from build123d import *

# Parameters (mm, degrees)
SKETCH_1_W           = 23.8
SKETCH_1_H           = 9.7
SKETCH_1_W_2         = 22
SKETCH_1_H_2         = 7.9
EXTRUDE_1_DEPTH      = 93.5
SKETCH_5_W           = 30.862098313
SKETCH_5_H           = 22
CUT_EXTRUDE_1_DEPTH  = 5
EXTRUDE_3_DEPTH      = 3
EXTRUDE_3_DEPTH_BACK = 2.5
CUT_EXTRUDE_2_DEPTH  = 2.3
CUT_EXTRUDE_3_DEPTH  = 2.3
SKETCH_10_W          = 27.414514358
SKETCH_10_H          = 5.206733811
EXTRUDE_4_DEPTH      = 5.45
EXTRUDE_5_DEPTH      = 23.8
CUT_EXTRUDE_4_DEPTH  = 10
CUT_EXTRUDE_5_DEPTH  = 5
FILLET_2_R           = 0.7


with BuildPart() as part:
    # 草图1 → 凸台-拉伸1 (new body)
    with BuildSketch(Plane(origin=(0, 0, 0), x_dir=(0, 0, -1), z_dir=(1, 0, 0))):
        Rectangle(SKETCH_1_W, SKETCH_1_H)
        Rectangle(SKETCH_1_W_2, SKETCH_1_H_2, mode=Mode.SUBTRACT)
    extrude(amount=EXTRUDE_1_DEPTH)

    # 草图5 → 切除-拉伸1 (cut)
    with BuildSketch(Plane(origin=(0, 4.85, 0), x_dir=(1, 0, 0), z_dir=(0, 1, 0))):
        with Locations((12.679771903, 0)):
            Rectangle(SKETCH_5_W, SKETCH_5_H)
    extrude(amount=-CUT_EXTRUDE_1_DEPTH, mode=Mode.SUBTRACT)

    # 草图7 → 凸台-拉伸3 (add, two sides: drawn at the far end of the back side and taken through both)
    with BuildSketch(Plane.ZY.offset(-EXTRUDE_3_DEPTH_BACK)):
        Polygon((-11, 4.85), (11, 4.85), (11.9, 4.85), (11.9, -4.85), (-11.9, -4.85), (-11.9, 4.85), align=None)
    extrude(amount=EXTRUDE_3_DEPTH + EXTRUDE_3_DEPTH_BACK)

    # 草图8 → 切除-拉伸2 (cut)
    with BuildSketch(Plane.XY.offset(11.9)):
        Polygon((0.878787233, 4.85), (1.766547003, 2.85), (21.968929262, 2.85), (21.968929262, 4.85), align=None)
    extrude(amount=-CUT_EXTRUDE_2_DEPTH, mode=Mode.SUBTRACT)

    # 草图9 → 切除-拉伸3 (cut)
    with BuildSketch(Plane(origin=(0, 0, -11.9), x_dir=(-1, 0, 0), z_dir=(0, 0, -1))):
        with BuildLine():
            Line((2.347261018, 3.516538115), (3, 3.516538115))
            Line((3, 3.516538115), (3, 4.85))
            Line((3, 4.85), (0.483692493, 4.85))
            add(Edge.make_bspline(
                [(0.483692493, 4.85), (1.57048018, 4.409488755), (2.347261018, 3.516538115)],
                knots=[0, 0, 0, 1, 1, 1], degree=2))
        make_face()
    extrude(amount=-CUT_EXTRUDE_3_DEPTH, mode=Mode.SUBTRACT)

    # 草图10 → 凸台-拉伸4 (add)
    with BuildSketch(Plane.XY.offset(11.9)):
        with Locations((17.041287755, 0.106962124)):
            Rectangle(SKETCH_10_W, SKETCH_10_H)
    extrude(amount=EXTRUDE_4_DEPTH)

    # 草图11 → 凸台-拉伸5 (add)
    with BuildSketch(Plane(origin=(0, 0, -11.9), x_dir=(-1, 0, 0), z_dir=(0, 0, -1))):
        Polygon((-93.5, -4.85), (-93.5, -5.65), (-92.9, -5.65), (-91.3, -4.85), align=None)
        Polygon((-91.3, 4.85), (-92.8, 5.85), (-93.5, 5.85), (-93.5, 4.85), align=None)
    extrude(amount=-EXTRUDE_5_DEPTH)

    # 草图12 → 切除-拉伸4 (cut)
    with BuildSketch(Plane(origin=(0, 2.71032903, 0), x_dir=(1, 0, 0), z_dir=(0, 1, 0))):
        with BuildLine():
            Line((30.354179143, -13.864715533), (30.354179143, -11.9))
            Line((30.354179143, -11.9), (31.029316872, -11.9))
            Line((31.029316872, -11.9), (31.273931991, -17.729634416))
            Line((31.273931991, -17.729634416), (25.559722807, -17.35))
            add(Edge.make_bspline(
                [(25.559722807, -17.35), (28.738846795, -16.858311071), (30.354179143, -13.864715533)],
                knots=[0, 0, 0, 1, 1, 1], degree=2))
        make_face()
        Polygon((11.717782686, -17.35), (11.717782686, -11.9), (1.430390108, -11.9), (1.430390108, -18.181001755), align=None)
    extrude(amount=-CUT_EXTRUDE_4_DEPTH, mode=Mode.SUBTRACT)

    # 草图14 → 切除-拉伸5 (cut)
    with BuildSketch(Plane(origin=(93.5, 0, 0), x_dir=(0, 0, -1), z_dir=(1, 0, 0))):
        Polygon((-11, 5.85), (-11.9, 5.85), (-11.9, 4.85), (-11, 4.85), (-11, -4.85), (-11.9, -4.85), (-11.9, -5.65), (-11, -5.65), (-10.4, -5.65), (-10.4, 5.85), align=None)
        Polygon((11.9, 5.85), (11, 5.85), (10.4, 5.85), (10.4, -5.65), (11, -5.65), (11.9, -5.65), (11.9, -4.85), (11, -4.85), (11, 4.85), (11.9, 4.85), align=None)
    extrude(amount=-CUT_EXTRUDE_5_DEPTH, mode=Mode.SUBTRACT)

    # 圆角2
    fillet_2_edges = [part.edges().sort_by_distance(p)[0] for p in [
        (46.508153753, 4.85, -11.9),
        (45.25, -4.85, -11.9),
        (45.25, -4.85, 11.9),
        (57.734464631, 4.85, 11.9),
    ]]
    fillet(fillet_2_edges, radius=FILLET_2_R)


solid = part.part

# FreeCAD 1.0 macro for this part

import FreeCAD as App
import Part
import Sketcher


def edges_at(feature, points):
    """Names of the edges that pass closest to the given points."""
    edges = feature.Shape.Edges
    near = lambda p: min(range(len(edges)), key=lambda i: edges[i].distToShape(Part.Vertex(*p))[0])
    return sorted({f"Edge{near(p) + 1}" for p in points})

doc = App.newDocument("Part")
body = doc.addObject("PartDesign::Body", "Body")

# Sketch on YZ plane
sketch1 = doc.addObject("Sketcher::SketchObject", "Sketch")
body.addObject(sketch1)
sketch1.AttachmentSupport = (doc.YZ_Plane, [""])
sketch1.MapMode = "FlatFace"
sketch1.addGeometry([
    Part.LineSegment(App.Vector(5, 12, 0), App.Vector(-5, 12, 0)),  # 0
    Part.LineSegment(App.Vector(-5, 12, 0), App.Vector(-5, -12, 0)),  # 1
    Part.LineSegment(App.Vector(-5, -12, 0), App.Vector(5, -12, 0)),  # 2
    Part.LineSegment(App.Vector(5, -12, 0), App.Vector(5, 12, 0)),  # 3
    Part.LineSegment(App.Vector(-4, -11, 0), App.Vector(-4, 11, 0)),  # 4
    Part.LineSegment(App.Vector(-4, 11, 0), App.Vector(4, 11, 0)),  # 5
    Part.LineSegment(App.Vector(4, 11, 0), App.Vector(4, -11, 0)),  # 6
    Part.LineSegment(App.Vector(4, -11, 0), App.Vector(-4, -11, 0)),  # 7
], False)
sketch1.addConstraint([
    Sketcher.Constraint("Coincident", 0, 2, 1, 1),
    Sketcher.Constraint("Coincident", 1, 2, 2, 1),
    Sketcher.Constraint("Coincident", 2, 2, 3, 1),
    Sketcher.Constraint("Coincident", 3, 2, 0, 1),
    Sketcher.Constraint("Coincident", 4, 2, 5, 1),
    Sketcher.Constraint("Coincident", 5, 2, 6, 1),
    Sketcher.Constraint("Coincident", 6, 2, 7, 1),
    Sketcher.Constraint("Coincident", 7, 2, 4, 1),
    Sketcher.Constraint("Horizontal", 0),
    Sketcher.Constraint("Vertical", 1),
    Sketcher.Constraint("Horizontal", 2),
    Sketcher.Constraint("Vertical", 3),
    Sketcher.Constraint("Vertical", 4),
    Sketcher.Constraint("Horizontal", 5),
    Sketcher.Constraint("Vertical", 6),
    Sketcher.Constraint("Horizontal", 7),
    Sketcher.Constraint("Symmetric", 0, 2, 2, 2, -1, 1),
    Sketcher.Constraint("Symmetric", 4, 2, 6, 2, -1, 1),
    Sketcher.Constraint("DistanceY", 4, 1, 4, 2, 22.0),
    Sketcher.Constraint("DistanceX", 0, 2, 0, 1, 9.7),
    Sketcher.Constraint("DistanceX", 5, 1, 5, 2, 7.9),
    Sketcher.Constraint("DistanceY", 1, 2, 1, 1, 23.8),
])
pad1 = doc.addObject("PartDesign::Pad", "Pad")
body.addObject(pad1)
pad1.Profile = sketch1
pad1.Length = 93.5

# Sketch on XZ plane
sketch2 = doc.addObject("Sketcher::SketchObject", "Sketch001")
body.addObject(sketch2)
sketch2.AttachmentSupport = (doc.XZ_Plane, [""])
sketch2.MapMode = "FlatFace"
sketch2.AttachmentOffset = App.Placement(App.Vector(0, 0, -4.85), App.Rotation())
sketch2.addGeometry([
    Part.LineSegment(App.Vector(-3, -11, 0), App.Vector(-3, 11, 0)),
    Part.LineSegment(App.Vector(-3, 11, 0), App.Vector(28, 11, 0)),
    Part.LineSegment(App.Vector(28, 11, 0), App.Vector(28, -11, 0)),
    Part.LineSegment(App.Vector(28, -11, 0), App.Vector(-3, -11, 0)),
], False)
sketch2.addConstraint([
    Sketcher.Constraint("Coincident", 0, 2, 1, 1),
    Sketcher.Constraint("Coincident", 1, 2, 2, 1),
    Sketcher.Constraint("Coincident", 2, 2, 3, 1),
    Sketcher.Constraint("Coincident", 3, 2, 0, 1),
    Sketcher.Constraint("Vertical", 0),
    Sketcher.Constraint("Horizontal", 1),
    Sketcher.Constraint("Vertical", 2),
    Sketcher.Constraint("Horizontal", 3),
    Sketcher.Constraint("DistanceY", 0, 1, 0, 2, 22.0),
    Sketcher.Constraint("DistanceY", -1, 1, 0, 2, 11.0),
    Sketcher.Constraint("DistanceX", 1, 1, 1, 2, 30.862098),
    Sketcher.Constraint("DistanceX", -1, 1, 1, 2, 28.110821),
])
pocket1 = doc.addObject("PartDesign::Pocket", "Pocket")
body.addObject(pocket1)
pocket1.Profile = sketch2
pocket1.Length = 5
pocket1.Reversed = True

# Sketch on YZ plane
sketch3 = doc.addObject("Sketcher::SketchObject", "Sketch002")
body.addObject(sketch3)
sketch3.AttachmentSupport = (doc.YZ_Plane, [""])
sketch3.MapMode = "FlatFace"
sketch3.addGeometry([
    Part.LineSegment(App.Vector(5, 12, 0), App.Vector(5, -12, 0)),
    Part.LineSegment(App.Vector(5, -12, 0), App.Vector(-5, -12, 0)),
    Part.LineSegment(App.Vector(-5, -12, 0), App.Vector(-5, 12, 0)),
    Part.LineSegment(App.Vector(-5, 12, 0), App.Vector(5, 12, 0)),
], False)
sketch3.addConstraint([
    Sketcher.Constraint("Coincident", 0, 2, 1, 1),
    Sketcher.Constraint("Coincident", 1, 2, 2, 1),
    Sketcher.Constraint("Coincident", 2, 2, 3, 1),
    Sketcher.Constraint("Coincident", 3, 2, 0, 1),
    Sketcher.Constraint("Vertical", 0),
    Sketcher.Constraint("Horizontal", 1),
    Sketcher.Constraint("Vertical", 2),
    Sketcher.Constraint("Horizontal", 3),
    Sketcher.Constraint("Symmetric", 0, 2, 2, 2, -1, 1),
    Sketcher.Constraint("DistanceX", 1, 2, 1, 1, 9.7),
    Sketcher.Constraint("DistanceY", 0, 2, 0, 1, 23.8),
])
pad2 = doc.addObject("PartDesign::Pad", "Pad001")
body.addObject(pad2)
pad2.Profile = sketch3
pad2.Type = "TwoLengths"
pad2.Length = 3
pad2.Length2 = 2.5
pad2.Reversed = True

# Sketch on XY plane
sketch4 = doc.addObject("Sketcher::SketchObject", "Sketch003")
body.addObject(sketch4)
sketch4.AttachmentSupport = (doc.XY_Plane, [""])
sketch4.MapMode = "FlatFace"
sketch4.AttachmentOffset = App.Placement(App.Vector(0, 0, 11.9), App.Rotation())
sketch4.addGeometry([
    Part.LineSegment(App.Vector(0.9, 4.8, 0), App.Vector(1.8, 2.9, 0)),
    Part.LineSegment(App.Vector(1.8, 2.9, 0), App.Vector(22, 2.9, 0)),
    Part.LineSegment(App.Vector(22, 2.9, 0), App.Vector(22, 4.8, 0)),
    Part.LineSegment(App.Vector(22, 4.8, 0), App.Vector(0.9, 4.8, 0)),
], False)
sketch4.addConstraint([
    Sketcher.Constraint("Coincident", 0, 2, 1, 1),
    Sketcher.Constraint("Coincident", 1, 2, 2, 1),
    Sketcher.Constraint("Coincident", 2, 2, 3, 1),
    Sketcher.Constraint("Coincident", 3, 2, 0, 1),
    Sketcher.Constraint("Horizontal", 1),
    Sketcher.Constraint("Vertical", 2),
    Sketcher.Constraint("Horizontal", 3),
    Sketcher.Constraint("DistanceY", 2, 1, 2, 2, 2.0),
    Sketcher.Constraint("DistanceY", -1, 1, 0, 2, 2.85),
    Sketcher.Constraint("DistanceX", 1, 1, 1, 2, 20.202382),
    Sketcher.Constraint("DistanceX", 3, 2, 3, 1, 21.090142),
    Sketcher.Constraint("DistanceX", -1, 1, 1, 2, 21.968929),
])
pocket2 = doc.addObject("PartDesign::Pocket", "Pocket001")
body.addObject(pocket2)
pocket2.Profile = sketch4
pocket2.Length = 2.3

# Sketch on XY plane
sketch5 = doc.addObject("Sketcher::SketchObject", "Sketch004")
body.addObject(sketch5)
sketch5.AttachmentSupport = (doc.XY_Plane, [""])
sketch5.MapMode = "FlatFace"
sketch5.AttachmentOffset = App.Placement(App.Vector(0, 0, -11.9), App.Rotation())
sketch5.addGeometry([
    Part.LineSegment(App.Vector(-2.347261, 3.516538, 0), App.Vector(-3, 3.516538, 0)),
    Part.LineSegment(App.Vector(-3, 3.516538, 0), App.Vector(-3, 4.85, 0)),
    Part.LineSegment(App.Vector(-3, 4.85, 0), App.Vector(-0.483692, 4.85, 0)),
    Part.BSplineCurve([App.Vector(-0.483692, 4.85, 0), App.Vector(-1.57048, 4.409489, 0), App.Vector(-2.347261, 3.516538, 0)], [3, 3], [0, 1], False, 2, [1, 1, 1], False),
], False)
sketch5.addConstraint([
    Sketcher.Constraint("Block", 3),
    Sketcher.Constraint("Coincident", 0, 2, 1, 1),
    Sketcher.Constraint("Coincident", 1, 2, 2, 1),
    Sketcher.Constraint("Coincident", 2, 2, 3, 1),
    Sketcher.Constraint("Coincident", 3, 2, 0, 1),
    Sketcher.Constraint("Horizontal", 0),
    Sketcher.Constraint("Vertical", 1),
    Sketcher.Constraint("Horizontal", 2),
    Sketcher.Constraint("DistanceX", 0, 2, -1, 1, 3.0),
])
pocket3 = doc.addObject("PartDesign::Pocket", "Pocket002")
body.addObject(pocket3)
pocket3.Profile = sketch5
pocket3.Length = 2.3
pocket3.Reversed = True

# Sketch on XY plane
sketch6 = doc.addObject("Sketcher::SketchObject", "Sketch005")
body.addObject(sketch6)
sketch6.AttachmentSupport = (doc.XY_Plane, [""])
sketch6.MapMode = "FlatFace"
sketch6.AttachmentOffset = App.Placement(App.Vector(0, 0, 11.9), App.Rotation())
sketch6.addGeometry([
    Part.LineSegment(App.Vector(3, 3, 0), App.Vector(3, -2, 0)),
    Part.LineSegment(App.Vector(3, -2, 0), App.Vector(31, -2, 0)),
    Part.LineSegment(App.Vector(31, -2, 0), App.Vector(31, 3, 0)),
    Part.LineSegment(App.Vector(31, 3, 0), App.Vector(3, 3, 0)),
], False)
sketch6.addConstraint([
    Sketcher.Constraint("Coincident", 0, 2, 1, 1),
    Sketcher.Constraint("Coincident", 1, 2, 2, 1),
    Sketcher.Constraint("Coincident", 2, 2, 3, 1),
    Sketcher.Constraint("Coincident", 3, 2, 0, 1),
    Sketcher.Constraint("Vertical", 0),
    Sketcher.Constraint("Horizontal", 1),
    Sketcher.Constraint("Vertical", 2),
    Sketcher.Constraint("Horizontal", 3),
    Sketcher.Constraint("DistanceX", 1, 1, 1, 2, 27.414514),
    Sketcher.Constraint("DistanceY", 0, 2, 0, 1, 5.206734),
    Sketcher.Constraint("DistanceX", -1, 1, 0, 2, 3.334031),
    Sketcher.Constraint("DistanceY", -1, 1, 2, 2, 2.710329),
])
pad3 = doc.addObject("PartDesign::Pad", "Pad002")
body.addObject(pad3)
pad3.Profile = sketch6
pad3.Length = 5.45

# Sketch on XY plane
sketch7 = doc.addObject("Sketcher::SketchObject", "Sketch006")
body.addObject(sketch7)
sketch7.AttachmentSupport = (doc.XY_Plane, [""])
sketch7.MapMode = "FlatFace"
sketch7.AttachmentOffset = App.Placement(App.Vector(0, 0, -11.9), App.Rotation())
sketch7.addGeometry([
    Part.LineSegment(App.Vector(93.5, -4.8, 0), App.Vector(93.5, -5.7, 0)),  # 0
    Part.LineSegment(App.Vector(93.5, -5.7, 0), App.Vector(92.9, -5.7, 0)),  # 1
    Part.LineSegment(App.Vector(92.9, -5.7, 0), App.Vector(91.3, -4.8, 0)),  # 2
    Part.LineSegment(App.Vector(91.3, -4.8, 0), App.Vector(93.5, -4.8, 0)),  # 3
    Part.LineSegment(App.Vector(91.3, 4.8, 0), App.Vector(92.8, 5.8, 0)),  # 4
    Part.LineSegment(App.Vector(92.8, 5.8, 0), App.Vector(93.5, 5.8, 0)),  # 5
    Part.LineSegment(App.Vector(93.5, 5.8, 0), App.Vector(93.5, 4.8, 0)),  # 6
    Part.LineSegment(App.Vector(93.5, 4.8, 0), App.Vector(91.3, 4.8, 0)),  # 7
], False)
sketch7.addConstraint([
    Sketcher.Constraint("Coincident", 0, 2, 1, 1),
    Sketcher.Constraint("Coincident", 1, 2, 2, 1),
    Sketcher.Constraint("Coincident", 2, 2, 3, 1),
    Sketcher.Constraint("Coincident", 3, 2, 0, 1),
    Sketcher.Constraint("Coincident", 4, 2, 5, 1),
    Sketcher.Constraint("Coincident", 5, 2, 6, 1),
    Sketcher.Constraint("Coincident", 6, 2, 7, 1),
    Sketcher.Constraint("Coincident", 7, 2, 4, 1),
    Sketcher.Constraint("Vertical", 0),
    Sketcher.Constraint("Horizontal", 1),
    Sketcher.Constraint("Horizontal", 3),
    Sketcher.Constraint("Horizontal", 5),
    Sketcher.Constraint("Vertical", 6),
    Sketcher.Constraint("Horizontal", 7),
    Sketcher.Constraint("Symmetric", 3, 2, 6, 2, -1),
    Sketcher.Constraint("Vertical", 2, 2, 7, 2),
    Sketcher.Constraint("DistanceY", 6, 2, 6, 1, 1.0),
    Sketcher.Constraint("DistanceX", 1, 2, 1, 1, 0.6),
    Sketcher.Constraint("DistanceX", 3, 1, 3, 2, 2.2),
    Sketcher.Constraint("DistanceX", 5, 1, 5, 2, 0.7),
    Sketcher.Constraint("DistanceY", 0, 2, 0, 1, 0.8),
    Sketcher.Constraint("DistanceX", -1, 1, 0, 2, 93.5),
    Sketcher.Constraint("DistanceY", 3, 2, 4, 2, 10.7),
])
pad4 = doc.addObject("PartDesign::Pad", "Pad003")
body.addObject(pad4)
pad4.Profile = sketch7
pad4.Length = 23.8

# Sketch on XZ plane
sketch8 = doc.addObject("Sketcher::SketchObject", "Sketch007")
body.addObject(sketch8)
sketch8.AttachmentSupport = (doc.XZ_Plane, [""])
sketch8.MapMode = "FlatFace"
sketch8.AttachmentOffset = App.Placement(App.Vector(0, 0, -2.710329), App.Rotation())
sketch8.addGeometry([
    Part.LineSegment(App.Vector(30.354179, 11.9, 0), App.Vector(30.354179, 13.864716, 0)),  # 0
    Part.BSplineCurve([App.Vector(25.559723, 17.35, 0), App.Vector(28.738847, 16.858311, 0), App.Vector(30.354179, 13.864716, 0)], [3, 3], [0, 1], False, 2, [1, 1, 1], False),  # 1
    Part.LineSegment(App.Vector(25.559723, 17.35, 0), App.Vector(31.273932, 17.729634, 0)),  # 2
    Part.LineSegment(App.Vector(31.273932, 17.729634, 0), App.Vector(31.029317, 11.9, 0)),  # 3
    Part.LineSegment(App.Vector(31.029317, 11.9, 0), App.Vector(30.354179, 11.9, 0)),  # 4
    Part.LineSegment(App.Vector(11.717783, 17.35, 0), App.Vector(11.717783, 11.9, 0)),  # 5
    Part.LineSegment(App.Vector(11.717783, 11.9, 0), App.Vector(1.43039, 11.9, 0)),  # 6
    Part.LineSegment(App.Vector(1.43039, 11.9, 0), App.Vector(1.43039, 18.181002, 0)),  # 7
    Part.LineSegment(App.Vector(1.43039, 18.181002, 0), App.Vector(11.717783, 17.35, 0)),  # 8
], False)
sketch8.addConstraint([
    Sketcher.Constraint("Block", 1),
    Sketcher.Constraint("Coincident", 0, 2, 1, 2),
    Sketcher.Constraint("Coincident", 1, 1, 2, 1),
    Sketcher.Constraint("Coincident", 2, 2, 3, 1),
    Sketcher.Constraint("Coincident", 3, 2, 4, 1),
    Sketcher.Constraint("Coincident", 4, 2, 0, 1),
    Sketcher.Constraint("Coincident", 5, 2, 6, 1),
    Sketcher.Constraint("Coincident", 6, 2, 7, 1),
    Sketcher.Constraint("Coincident", 7, 2, 8, 1),
    Sketcher.Constraint("Coincident", 8, 2, 5, 1),
    Sketcher.Constraint("Vertical", 0),
    Sketcher.Constraint("Horizontal", 4),
    Sketcher.Constraint("Vertical", 5),
    Sketcher.Constraint("Horizontal", 6),
    Sketcher.Constraint("Vertical", 7),
    Sketcher.Constraint("Horizontal", 4, 2, 5, 2),
    Sketcher.Constraint("DistanceY", 5, 2, 5, 1, 5.45),
    Sketcher.Constraint("DistanceY", -1, 1, 3, 2, 11.9),
    Sketcher.Constraint("DistanceY", 7, 1, 7, 2, 6.281002),
    Sketcher.Constraint("Distance", 8, 10.320902),
    Sketcher.Constraint("DistanceX", 4, 2, 4, 1, 0.675138),
    Sketcher.Constraint("DistanceX", -1, 1, 2, 2, 31.273932),
    Sketcher.Constraint("DistanceX", -1, 1, 6, 2, 1.43039),
    Sketcher.Constraint("DistanceY", 0, 2, 2, 2, 3.864919),
])
pocket4 = doc.addObject("PartDesign::Pocket", "Pocket003")
body.addObject(pocket4)
pocket4.Profile = sketch8
pocket4.Length = 10
pocket4.Reversed = True

# Sketch on YZ plane
sketch9 = doc.addObject("Sketcher::SketchObject", "Sketch008")
body.addObject(sketch9)
sketch9.AttachmentSupport = (doc.YZ_Plane, [""])
sketch9.MapMode = "FlatFace"
sketch9.AttachmentOffset = App.Placement(App.Vector(0, 0, 93.5), App.Rotation())
sketch9.addGeometry([
    Part.LineSegment(App.Vector(5.8, 11.9, 0), App.Vector(4.8, 11.9, 0)),  # 0
    Part.LineSegment(App.Vector(4.8, 11.9, 0), App.Vector(4.8, 11, 0)),  # 1
    Part.LineSegment(App.Vector(4.8, 11, 0), App.Vector(-4.8, 11, 0)),  # 2
    Part.LineSegment(App.Vector(-4.8, 11, 0), App.Vector(-4.8, 11.9, 0)),  # 3
    Part.LineSegment(App.Vector(-4.8, 11.9, 0), App.Vector(-5.7, 11.9, 0)),  # 4
    Part.LineSegment(App.Vector(-5.7, 11.9, 0), App.Vector(-5.7, 10.4, 0)),  # 5
    Part.LineSegment(App.Vector(-5.7, 10.4, 0), App.Vector(5.8, 10.4, 0)),  # 6
    Part.LineSegment(App.Vector(5.8, 10.4, 0), App.Vector(5.8, 11.9, 0)),  # 7
    Part.LineSegment(App.Vector(5.8, -11.9, 0), App.Vector(5.8, -10.4, 0)),  # 8
    Part.LineSegment(App.Vector(5.8, -10.4, 0), App.Vector(-5.7, -10.4, 0)),  # 9
    Part.LineSegment(App.Vector(-5.7, -10.4, 0), App.Vector(-5.7, -11.9, 0)),  # 10
    Part.LineSegment(App.Vector(-5.7, -11.9, 0), App.Vector(-4.8, -11.9, 0)),  # 11
    Part.LineSegment(App.Vector(-4.8, -11.9, 0), App.Vector(-4.8, -11, 0)),  # 12
    Part.LineSegment(App.Vector(-4.8, -11, 0), App.Vector(4.8, -11, 0)),  # 13
    Part.LineSegment(App.Vector(4.8, -11, 0), App.Vector(4.8, -11.9, 0)),  # 14
    Part.LineSegment(App.Vector(4.8, -11.9, 0), App.Vector(5.8, -11.9, 0)),  # 15
], False)
sketch9.addConstraint([
    Sketcher.Constraint("Coincident", 0, 2, 1, 1),
    Sketcher.Constraint("Coincident", 1, 2, 2, 1),
    Sketcher.Constraint("Coincident", 2, 2, 3, 1),
    Sketcher.Constraint("Coincident", 3, 2, 4, 1),
    Sketcher.Constraint("Coincident", 4, 2, 5, 1),
    Sketcher.Constraint("Coincident", 5, 2, 6, 1),
    Sketcher.Constraint("Coincident", 6, 2, 7, 1),
    Sketcher.Constraint("Coincident", 7, 2, 0, 1),
    Sketcher.Constraint("Coincident", 8, 2, 9, 1),
    Sketcher.Constraint("Coincident", 9, 2, 10, 1),
    Sketcher.Constraint("Coincident", 10, 2, 11, 1),
    Sketcher.Constraint("Coincident", 11, 2, 12, 1),
    Sketcher.Constraint("Coincident", 12, 2, 13, 1),
    Sketcher.Constraint("Coincident", 13, 2, 14, 1),
    Sketcher.Constraint("Coincident", 14, 2, 15, 1),
    Sketcher.Constraint("Coincident", 15, 2, 8, 1),
    Sketcher.Constraint("Horizontal", 0),
    Sketcher.Constraint("Vertical", 1),
    Sketcher.Constraint("Horizontal", 2),
    Sketcher.Constraint("Vertical", 3),
    Sketcher.Constraint("Horizontal", 4),
    Sketcher.Constraint("Vertical", 5),
    Sketcher.Constraint("Horizontal", 6),
    Sketcher.Constraint("Vertical", 7),
    Sketcher.Constraint("Vertical", 8),
    Sketcher.Constraint("Horizontal", 9),
    Sketcher.Constraint("Vertical", 10),
    Sketcher.Constraint("Horizontal", 11),
    Sketcher.Constraint("Vertical", 12),
    Sketcher.Constraint("Horizontal", 13),
    Sketcher.Constraint("Vertical", 14),
    Sketcher.Constraint("Horizontal", 15),
    Sketcher.Constraint("Symmetric", 0, 2, 11, 2, -1, 1),
    Sketcher.Constraint("Symmetric", 2, 2, 13, 2, -1, 1),
    Sketcher.Constraint("Symmetric", 0, 2, 3, 2, -2),
    Sketcher.Constraint("Symmetric", 6, 2, 8, 2, -1),
    Sketcher.Constraint("Horizontal", 11, 2, 14, 2),
    Sketcher.Constraint("Vertical", 5, 2, 9, 2),
    Sketcher.Constraint("DistanceX", 0, 2, 0, 1, 1.0),
    Sketcher.Constraint("DistanceX", 2, 2, 2, 1, 9.7),
    Sketcher.Constraint("DistanceX", 4, 2, 4, 1, 0.8),
    Sketcher.Constraint("DistanceY", 1, 2, 1, 1, 0.9),
    Sketcher.Constraint("DistanceY", 5, 2, 5, 1, 1.5),
    Sketcher.Constraint("DistanceY", -1, 1, 1, 2, 11.0),
])
pocket5 = doc.addObject("PartDesign::Pocket", "Pocket004")
body.addObject(pocket5)
pocket5.Profile = sketch9
pocket5.Length = 5
doc.recompute()

fillet = doc.addObject("PartDesign::Fillet", "Fillet")
body.addObject(fillet)
fillet.Base = (pocket5, edges_at(pocket5, [
    (46.508, 4.85, -11.9),
    (45.25, -4.85, -11.9),
    (45.25, -4.85, 11.9),
    (57.734, 4.85, 11.9),
]))
fillet.Radius = 0.7

doc.recompute()
